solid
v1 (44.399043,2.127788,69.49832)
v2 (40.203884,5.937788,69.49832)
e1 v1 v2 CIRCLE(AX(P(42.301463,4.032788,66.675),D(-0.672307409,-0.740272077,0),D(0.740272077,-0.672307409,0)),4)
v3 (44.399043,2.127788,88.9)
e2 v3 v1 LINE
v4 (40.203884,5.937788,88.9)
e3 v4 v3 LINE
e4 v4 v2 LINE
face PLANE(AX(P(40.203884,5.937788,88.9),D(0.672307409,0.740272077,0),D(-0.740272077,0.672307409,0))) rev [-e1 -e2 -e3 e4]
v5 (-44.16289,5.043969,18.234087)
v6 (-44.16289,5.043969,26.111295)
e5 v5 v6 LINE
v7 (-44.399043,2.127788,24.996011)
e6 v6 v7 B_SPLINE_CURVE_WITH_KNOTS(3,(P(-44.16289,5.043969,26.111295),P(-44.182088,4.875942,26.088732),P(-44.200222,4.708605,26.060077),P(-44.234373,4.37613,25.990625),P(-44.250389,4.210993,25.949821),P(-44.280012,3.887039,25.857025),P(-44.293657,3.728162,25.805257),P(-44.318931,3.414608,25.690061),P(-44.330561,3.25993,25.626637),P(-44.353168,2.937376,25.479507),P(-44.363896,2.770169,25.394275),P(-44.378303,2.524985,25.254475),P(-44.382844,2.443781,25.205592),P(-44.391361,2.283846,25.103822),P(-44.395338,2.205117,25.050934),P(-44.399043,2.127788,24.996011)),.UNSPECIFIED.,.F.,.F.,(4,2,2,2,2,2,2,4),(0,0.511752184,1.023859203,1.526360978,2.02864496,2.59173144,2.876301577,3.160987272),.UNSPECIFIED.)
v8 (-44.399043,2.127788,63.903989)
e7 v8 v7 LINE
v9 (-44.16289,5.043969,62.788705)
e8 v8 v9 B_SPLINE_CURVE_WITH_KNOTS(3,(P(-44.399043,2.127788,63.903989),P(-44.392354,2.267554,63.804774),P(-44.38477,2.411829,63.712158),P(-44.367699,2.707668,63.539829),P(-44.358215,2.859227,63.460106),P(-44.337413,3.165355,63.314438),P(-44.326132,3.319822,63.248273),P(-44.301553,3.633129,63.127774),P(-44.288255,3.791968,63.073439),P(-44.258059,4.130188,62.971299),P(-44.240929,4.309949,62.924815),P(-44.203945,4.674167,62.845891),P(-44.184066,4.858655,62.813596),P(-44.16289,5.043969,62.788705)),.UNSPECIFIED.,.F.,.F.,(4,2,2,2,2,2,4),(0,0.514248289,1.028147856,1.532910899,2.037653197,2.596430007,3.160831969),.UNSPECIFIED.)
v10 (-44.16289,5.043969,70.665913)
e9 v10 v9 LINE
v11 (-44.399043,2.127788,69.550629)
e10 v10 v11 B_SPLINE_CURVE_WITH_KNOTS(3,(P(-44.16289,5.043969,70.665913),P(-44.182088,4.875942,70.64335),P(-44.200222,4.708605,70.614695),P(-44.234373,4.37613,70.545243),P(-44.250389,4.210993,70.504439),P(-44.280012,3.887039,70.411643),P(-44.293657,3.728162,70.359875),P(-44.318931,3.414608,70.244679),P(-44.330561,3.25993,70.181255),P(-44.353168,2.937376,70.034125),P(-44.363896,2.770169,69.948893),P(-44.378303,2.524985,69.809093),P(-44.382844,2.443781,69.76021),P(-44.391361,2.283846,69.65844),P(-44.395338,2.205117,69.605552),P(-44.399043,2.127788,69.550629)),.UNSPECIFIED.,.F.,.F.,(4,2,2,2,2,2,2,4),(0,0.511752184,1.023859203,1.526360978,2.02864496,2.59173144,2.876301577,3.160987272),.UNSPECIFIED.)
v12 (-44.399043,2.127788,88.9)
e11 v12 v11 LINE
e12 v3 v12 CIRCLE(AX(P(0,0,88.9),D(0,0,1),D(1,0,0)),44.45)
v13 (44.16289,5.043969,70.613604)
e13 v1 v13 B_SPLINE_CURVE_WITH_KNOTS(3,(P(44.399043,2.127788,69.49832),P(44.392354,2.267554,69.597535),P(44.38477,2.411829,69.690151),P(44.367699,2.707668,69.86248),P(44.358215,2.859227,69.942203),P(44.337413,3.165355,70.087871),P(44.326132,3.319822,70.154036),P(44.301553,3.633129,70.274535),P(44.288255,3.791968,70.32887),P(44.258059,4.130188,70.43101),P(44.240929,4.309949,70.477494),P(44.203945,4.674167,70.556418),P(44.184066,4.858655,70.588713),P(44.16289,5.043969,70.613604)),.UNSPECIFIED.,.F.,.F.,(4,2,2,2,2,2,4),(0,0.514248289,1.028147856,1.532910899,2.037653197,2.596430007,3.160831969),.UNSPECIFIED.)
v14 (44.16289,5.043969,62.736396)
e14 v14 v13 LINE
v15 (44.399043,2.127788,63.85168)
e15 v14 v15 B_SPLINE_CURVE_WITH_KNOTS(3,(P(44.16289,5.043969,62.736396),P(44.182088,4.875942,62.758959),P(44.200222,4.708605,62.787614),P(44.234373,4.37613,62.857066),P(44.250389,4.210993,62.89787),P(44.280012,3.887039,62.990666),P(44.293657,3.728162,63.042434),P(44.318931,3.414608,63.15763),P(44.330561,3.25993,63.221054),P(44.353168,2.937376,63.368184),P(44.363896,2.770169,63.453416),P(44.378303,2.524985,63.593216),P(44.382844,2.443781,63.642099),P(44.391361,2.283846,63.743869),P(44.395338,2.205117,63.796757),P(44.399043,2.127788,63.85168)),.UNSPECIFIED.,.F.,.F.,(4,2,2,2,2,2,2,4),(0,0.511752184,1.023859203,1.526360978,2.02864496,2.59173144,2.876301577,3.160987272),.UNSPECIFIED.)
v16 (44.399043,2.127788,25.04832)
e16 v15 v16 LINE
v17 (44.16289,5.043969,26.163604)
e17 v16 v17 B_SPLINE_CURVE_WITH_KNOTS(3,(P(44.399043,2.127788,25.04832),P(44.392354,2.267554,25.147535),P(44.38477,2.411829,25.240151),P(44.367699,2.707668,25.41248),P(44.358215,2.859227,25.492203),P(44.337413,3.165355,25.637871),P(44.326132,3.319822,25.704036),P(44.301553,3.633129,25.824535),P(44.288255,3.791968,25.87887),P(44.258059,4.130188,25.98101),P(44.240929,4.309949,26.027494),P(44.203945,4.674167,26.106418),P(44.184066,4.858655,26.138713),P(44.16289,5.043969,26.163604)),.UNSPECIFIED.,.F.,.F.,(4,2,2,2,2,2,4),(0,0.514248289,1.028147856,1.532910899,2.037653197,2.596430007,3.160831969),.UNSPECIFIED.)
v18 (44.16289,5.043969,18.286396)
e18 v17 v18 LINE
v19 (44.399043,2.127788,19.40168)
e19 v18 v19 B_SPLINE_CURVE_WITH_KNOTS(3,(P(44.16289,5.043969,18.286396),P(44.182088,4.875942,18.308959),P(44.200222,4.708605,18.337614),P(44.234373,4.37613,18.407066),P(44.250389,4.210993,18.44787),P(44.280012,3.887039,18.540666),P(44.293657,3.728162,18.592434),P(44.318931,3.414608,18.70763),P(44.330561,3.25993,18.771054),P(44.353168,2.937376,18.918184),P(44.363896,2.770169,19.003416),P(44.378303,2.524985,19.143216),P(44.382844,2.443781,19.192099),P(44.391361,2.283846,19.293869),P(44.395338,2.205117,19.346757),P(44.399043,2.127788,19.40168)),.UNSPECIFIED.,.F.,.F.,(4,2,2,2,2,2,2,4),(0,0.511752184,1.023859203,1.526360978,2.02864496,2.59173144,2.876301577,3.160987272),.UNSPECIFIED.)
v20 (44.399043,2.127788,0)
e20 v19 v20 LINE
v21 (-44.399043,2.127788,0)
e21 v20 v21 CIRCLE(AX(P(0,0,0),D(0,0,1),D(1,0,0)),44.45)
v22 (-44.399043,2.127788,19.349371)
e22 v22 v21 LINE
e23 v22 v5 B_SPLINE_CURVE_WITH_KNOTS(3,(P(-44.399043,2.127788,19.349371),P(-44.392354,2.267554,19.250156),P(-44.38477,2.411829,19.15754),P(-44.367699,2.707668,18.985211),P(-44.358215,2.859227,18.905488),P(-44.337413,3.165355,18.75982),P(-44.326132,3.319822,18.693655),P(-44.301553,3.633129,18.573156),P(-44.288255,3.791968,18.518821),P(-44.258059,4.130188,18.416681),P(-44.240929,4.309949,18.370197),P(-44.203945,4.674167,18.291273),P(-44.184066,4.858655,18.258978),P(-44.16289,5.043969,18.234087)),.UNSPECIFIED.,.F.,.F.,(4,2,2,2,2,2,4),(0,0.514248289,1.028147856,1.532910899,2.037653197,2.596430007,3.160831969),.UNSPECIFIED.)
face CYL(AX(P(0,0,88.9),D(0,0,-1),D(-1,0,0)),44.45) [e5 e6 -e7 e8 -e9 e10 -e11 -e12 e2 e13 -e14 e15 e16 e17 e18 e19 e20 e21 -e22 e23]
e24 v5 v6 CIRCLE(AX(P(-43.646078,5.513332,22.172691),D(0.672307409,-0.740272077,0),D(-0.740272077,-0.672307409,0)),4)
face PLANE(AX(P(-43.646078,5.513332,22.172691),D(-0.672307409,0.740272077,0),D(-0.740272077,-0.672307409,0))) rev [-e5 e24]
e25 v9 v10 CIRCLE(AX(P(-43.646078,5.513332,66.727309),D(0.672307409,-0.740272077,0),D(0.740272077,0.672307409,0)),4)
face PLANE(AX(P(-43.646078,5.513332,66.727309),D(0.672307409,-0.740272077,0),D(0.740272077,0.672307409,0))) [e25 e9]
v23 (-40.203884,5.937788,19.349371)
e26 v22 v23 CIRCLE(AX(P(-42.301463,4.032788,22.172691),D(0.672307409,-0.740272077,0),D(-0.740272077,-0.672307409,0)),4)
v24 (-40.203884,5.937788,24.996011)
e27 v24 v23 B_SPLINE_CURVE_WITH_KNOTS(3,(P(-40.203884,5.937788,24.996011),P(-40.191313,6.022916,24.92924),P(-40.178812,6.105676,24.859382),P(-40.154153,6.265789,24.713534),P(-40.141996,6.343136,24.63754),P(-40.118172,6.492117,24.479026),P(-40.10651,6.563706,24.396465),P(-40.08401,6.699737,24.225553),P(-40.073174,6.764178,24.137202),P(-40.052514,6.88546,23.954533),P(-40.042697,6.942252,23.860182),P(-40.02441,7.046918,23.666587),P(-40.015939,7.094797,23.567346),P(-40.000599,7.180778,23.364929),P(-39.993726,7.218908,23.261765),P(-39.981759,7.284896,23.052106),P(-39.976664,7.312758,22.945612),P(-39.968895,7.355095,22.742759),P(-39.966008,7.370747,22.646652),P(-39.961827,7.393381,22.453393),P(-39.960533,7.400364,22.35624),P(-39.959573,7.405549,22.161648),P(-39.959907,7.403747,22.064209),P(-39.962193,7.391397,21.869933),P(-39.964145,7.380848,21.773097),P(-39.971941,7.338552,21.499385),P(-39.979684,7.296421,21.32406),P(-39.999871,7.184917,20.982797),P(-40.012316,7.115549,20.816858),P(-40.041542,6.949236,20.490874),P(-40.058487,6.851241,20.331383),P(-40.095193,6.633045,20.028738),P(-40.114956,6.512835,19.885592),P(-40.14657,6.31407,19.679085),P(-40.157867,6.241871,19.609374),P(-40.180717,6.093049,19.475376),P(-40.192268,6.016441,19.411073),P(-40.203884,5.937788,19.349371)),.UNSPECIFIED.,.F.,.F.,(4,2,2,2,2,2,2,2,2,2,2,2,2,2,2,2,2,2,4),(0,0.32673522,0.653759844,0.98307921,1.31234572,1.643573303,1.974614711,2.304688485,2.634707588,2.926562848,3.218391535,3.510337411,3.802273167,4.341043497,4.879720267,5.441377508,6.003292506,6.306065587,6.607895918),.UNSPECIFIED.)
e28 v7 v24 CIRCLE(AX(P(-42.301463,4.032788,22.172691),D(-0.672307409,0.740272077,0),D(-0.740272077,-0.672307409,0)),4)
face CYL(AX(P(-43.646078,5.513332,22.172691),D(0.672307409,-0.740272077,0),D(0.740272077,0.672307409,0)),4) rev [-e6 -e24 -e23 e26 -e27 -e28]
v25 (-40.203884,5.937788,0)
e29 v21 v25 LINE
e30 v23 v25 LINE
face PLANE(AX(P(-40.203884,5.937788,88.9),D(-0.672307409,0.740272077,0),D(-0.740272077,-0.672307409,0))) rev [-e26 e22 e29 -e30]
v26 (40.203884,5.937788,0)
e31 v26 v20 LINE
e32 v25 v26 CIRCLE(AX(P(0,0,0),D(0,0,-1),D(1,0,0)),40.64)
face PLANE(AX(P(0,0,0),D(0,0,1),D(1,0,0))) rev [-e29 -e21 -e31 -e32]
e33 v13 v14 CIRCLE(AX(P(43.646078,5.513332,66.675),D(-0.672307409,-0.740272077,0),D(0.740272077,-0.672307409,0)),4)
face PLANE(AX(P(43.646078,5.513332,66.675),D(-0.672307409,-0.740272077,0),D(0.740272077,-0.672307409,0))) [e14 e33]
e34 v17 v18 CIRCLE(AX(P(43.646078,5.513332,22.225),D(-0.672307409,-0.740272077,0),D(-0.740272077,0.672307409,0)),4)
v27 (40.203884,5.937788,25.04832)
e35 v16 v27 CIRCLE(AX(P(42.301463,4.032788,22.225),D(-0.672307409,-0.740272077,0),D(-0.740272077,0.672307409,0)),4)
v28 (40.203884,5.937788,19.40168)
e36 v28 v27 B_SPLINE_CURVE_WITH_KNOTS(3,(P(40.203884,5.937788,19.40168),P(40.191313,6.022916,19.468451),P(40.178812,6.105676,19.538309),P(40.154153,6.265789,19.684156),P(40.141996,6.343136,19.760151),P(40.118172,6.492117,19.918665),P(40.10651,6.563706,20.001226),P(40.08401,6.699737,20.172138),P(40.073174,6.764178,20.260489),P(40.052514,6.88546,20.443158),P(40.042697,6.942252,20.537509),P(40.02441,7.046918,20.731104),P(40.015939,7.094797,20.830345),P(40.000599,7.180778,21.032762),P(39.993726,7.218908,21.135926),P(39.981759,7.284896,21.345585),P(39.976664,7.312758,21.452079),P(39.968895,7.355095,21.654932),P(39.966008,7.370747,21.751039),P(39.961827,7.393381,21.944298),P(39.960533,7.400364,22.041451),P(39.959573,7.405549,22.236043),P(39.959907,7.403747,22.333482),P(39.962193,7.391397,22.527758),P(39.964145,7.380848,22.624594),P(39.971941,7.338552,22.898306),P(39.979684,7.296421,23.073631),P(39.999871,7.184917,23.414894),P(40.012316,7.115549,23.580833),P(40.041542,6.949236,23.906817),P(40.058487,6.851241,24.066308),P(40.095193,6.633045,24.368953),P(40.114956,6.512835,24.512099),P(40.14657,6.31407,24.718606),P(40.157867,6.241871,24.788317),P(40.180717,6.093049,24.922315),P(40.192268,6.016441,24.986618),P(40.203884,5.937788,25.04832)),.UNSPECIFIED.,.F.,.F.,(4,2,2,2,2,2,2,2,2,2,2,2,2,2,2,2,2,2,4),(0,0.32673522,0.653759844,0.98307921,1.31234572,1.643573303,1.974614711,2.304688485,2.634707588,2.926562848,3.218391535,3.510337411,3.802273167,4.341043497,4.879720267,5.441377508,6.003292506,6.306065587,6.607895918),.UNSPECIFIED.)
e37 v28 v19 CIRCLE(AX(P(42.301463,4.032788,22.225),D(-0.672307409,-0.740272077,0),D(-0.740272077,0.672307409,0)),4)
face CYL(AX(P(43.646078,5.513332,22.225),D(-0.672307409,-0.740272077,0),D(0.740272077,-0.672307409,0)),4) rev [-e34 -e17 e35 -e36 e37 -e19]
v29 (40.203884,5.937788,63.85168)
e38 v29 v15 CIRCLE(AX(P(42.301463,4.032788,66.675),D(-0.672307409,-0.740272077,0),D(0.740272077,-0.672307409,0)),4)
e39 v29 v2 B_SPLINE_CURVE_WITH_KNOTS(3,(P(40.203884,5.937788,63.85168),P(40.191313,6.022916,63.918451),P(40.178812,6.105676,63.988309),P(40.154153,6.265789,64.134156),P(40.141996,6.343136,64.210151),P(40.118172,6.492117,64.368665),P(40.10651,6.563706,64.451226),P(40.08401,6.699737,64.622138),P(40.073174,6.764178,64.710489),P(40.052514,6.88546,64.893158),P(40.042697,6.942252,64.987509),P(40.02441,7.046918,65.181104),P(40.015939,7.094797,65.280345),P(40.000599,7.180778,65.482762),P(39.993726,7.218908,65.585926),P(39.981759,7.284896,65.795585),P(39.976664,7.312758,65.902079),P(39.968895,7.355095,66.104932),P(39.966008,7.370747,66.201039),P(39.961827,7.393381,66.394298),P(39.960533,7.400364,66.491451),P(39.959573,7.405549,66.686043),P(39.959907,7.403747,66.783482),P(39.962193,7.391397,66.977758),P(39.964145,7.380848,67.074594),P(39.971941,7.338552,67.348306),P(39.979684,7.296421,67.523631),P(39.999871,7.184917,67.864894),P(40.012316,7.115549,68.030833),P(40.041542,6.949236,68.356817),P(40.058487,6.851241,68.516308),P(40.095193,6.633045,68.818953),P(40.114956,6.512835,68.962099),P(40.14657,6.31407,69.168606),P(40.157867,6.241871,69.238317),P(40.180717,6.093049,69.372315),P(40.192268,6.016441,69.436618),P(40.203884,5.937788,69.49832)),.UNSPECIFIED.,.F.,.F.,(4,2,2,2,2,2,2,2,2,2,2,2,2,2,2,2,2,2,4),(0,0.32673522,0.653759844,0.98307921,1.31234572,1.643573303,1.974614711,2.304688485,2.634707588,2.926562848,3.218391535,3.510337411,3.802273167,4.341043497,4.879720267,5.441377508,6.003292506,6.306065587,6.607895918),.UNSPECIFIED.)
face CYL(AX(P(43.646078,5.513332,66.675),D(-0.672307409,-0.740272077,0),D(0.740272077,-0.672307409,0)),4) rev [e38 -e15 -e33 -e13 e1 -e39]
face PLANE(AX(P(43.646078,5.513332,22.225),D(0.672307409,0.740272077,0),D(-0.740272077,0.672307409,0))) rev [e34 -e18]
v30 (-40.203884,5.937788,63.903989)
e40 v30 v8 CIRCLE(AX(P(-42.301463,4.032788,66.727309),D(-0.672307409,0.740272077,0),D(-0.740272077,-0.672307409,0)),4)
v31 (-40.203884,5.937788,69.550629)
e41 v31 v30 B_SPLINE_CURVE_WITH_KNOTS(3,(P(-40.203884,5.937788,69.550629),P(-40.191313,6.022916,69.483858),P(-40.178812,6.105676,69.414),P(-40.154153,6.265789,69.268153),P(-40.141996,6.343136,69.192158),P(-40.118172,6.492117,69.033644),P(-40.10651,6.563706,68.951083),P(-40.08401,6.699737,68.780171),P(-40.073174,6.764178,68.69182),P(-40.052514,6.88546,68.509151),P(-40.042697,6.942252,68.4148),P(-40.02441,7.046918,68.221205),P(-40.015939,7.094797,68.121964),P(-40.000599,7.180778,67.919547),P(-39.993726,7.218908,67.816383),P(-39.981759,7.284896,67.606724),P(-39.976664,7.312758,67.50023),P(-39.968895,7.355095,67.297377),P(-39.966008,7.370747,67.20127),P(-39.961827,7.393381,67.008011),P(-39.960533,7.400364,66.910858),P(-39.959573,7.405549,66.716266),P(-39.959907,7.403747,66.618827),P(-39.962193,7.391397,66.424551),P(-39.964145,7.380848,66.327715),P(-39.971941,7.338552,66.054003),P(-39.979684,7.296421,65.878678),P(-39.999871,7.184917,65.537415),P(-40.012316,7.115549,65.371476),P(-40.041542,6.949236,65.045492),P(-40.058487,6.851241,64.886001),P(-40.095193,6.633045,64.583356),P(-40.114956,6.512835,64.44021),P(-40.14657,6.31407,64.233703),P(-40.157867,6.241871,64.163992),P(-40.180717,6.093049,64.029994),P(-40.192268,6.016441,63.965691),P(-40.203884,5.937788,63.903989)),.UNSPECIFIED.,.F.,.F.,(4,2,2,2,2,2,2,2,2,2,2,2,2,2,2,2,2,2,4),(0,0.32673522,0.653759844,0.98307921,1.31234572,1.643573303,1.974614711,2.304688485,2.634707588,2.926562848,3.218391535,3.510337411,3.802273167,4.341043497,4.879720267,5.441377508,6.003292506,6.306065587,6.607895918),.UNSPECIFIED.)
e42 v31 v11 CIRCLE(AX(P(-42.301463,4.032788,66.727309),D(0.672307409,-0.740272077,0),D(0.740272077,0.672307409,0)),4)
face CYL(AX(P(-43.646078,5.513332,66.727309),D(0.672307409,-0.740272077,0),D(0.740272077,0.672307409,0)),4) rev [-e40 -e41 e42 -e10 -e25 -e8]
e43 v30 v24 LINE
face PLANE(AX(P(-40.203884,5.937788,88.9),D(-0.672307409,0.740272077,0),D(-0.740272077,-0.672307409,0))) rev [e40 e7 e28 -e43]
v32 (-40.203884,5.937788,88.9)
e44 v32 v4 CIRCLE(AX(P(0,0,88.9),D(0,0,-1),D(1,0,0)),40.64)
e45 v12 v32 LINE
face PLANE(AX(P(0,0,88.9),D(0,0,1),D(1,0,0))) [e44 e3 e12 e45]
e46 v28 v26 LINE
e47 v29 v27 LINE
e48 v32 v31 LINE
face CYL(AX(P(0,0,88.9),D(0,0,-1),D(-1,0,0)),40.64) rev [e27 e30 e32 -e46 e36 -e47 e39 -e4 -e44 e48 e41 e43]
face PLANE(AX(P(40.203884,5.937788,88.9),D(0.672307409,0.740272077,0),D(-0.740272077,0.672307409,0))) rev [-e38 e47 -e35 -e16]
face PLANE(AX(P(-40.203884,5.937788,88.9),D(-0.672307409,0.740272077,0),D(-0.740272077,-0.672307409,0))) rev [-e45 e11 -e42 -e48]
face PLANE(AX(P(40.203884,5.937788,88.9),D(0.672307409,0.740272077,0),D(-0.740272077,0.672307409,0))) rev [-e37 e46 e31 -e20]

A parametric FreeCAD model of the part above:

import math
import FreeCAD as App
import Part
import Sketcher

V = App.Vector

doc = App.newDocument("Part")
body = doc.addObject("PartDesign::Body", "Body")

# Sketch on XY plane
sketch1 = doc.addObject("Sketcher::SketchObject", "Sketch")
body.addObject(sketch1)
sketch1.AttachmentSupport = (doc.XY_Plane, [""])
sketch1.MapMode = "FlatFace"
sketch1.addGeometry([
    Part.LineSegment(V(-44, 2, 0), V(-40, 6, 0)),
    Part.ArcOfCircle(Part.Circle(V(0, 0, 0), V(0, 0, 1), 41), math.radians(8), math.radians(172)),
    Part.LineSegment(V(40, 6, 0), V(44, 2, 0)),
    Part.ArcOfCircle(Part.Circle(V(0, 0, 0), V(0, 0, 1), 44), math.radians(3), math.radians(177)),
], False)
sketch1.addConstraint([
    Sketcher.Constraint("Coincident", 0, 2, 1, 2),
    Sketcher.Constraint("Coincident", 1, 1, 2, 1),
    Sketcher.Constraint("Coincident", 2, 2, 3, 1),
    Sketcher.Constraint("Coincident", 3, 2, 0, 1),
    Sketcher.Constraint("Coincident", 1, 3, -1, 1),
    Sketcher.Constraint("Coincident", 3, 3, -1, 1),
    Sketcher.Constraint("Horizontal", 0, 2, 1, 1),
    Sketcher.Constraint("Horizontal", 2, 2, 3, 2),
    Sketcher.Constraint("Radius", 1, 40.64),
    Sketcher.Constraint("Radius", 3, 44.45),
    Sketcher.Constraint("DistanceY", 2, 2, 1, 1, 3.81),
    Sketcher.Constraint("Distance", 0, 5.66705),
])
pad1 = doc.addObject("PartDesign::Pad", "Pad")
body.addObject(pad1)
pad1.Profile = sketch1
pad1.Length = 88.9

# Sketch on an angled plane
sketch2 = doc.addObject("Sketcher::SketchObject", "Sketch001")
body.addObject(sketch2)
sketch2.Placement = App.Placement(V(-21.127225, 23.263011, 0), App.Rotation(V(0.740272077, 0.672307409, 0), V(0, 0, 1), V(0.672307409, -0.740272077, 0), "ZXY"))
sketch2.addGeometry([
    Part.Circle(V(-28.6, 66.7, 0), V(0, 0, 1), 4),
    Part.Circle(V(-28.6, 22.2, 0), V(0, 0, 1), 4),
], False)
sketch2.addConstraint([
    Sketcher.Constraint("Equal", 0, 1),
    Sketcher.Constraint("Vertical", 0, 3, 1, 3),
    Sketcher.Constraint("Diameter", 0, 8.0),
    Sketcher.Constraint("DistanceX", 0, 3, -1, 1, 28.603319),
    Sketcher.Constraint("DistanceY", -1, 1, 0, 3, 66.727309),
    Sketcher.Constraint("DistanceY", -1, 1, 1, 3, 22.172691),
])
pocket1 = doc.addObject("PartDesign::Pocket", "Pocket")
body.addObject(pocket1)
pocket1.Profile = sketch2
pocket1.Length = 2

# Sketch on an angled plane
sketch3 = doc.addObject("Sketcher::SketchObject", "Sketch002")
body.addObject(sketch3)
sketch3.Placement = App.Placement(V(21.127225, 23.263011, 0), App.Rotation(V(0.740272077, -0.672307409, 0), V(0, 0, 1), V(-0.672307409, -0.740272077, 0), "ZXY"))
sketch3.addGeometry([
    Part.Circle(V(28.6, 66.7, 0), V(0, 0, 1), 4),
    Part.Circle(V(28.6, 22.2, 0), V(0, 0, 1), 4),
], False)
sketch3.addConstraint([
    Sketcher.Constraint("Equal", 0, 1),
    Sketcher.Constraint("Vertical", 0, 3, 1, 3),
    Sketcher.Constraint("Diameter", 0, 8.0),
    Sketcher.Constraint("DistanceY", 1, 3, 0, 3, 44.45),
    Sketcher.Constraint("DistanceY", -1, 1, 0, 3, 66.675),
    Sketcher.Constraint("DistanceX", -1, 1, 0, 3, 28.603319),
])
pocket2 = doc.addObject("PartDesign::Pocket", "Pocket001")
body.addObject(pocket2)
pocket2.Profile = sketch3
pocket2.Length = 2

doc.recompute()
